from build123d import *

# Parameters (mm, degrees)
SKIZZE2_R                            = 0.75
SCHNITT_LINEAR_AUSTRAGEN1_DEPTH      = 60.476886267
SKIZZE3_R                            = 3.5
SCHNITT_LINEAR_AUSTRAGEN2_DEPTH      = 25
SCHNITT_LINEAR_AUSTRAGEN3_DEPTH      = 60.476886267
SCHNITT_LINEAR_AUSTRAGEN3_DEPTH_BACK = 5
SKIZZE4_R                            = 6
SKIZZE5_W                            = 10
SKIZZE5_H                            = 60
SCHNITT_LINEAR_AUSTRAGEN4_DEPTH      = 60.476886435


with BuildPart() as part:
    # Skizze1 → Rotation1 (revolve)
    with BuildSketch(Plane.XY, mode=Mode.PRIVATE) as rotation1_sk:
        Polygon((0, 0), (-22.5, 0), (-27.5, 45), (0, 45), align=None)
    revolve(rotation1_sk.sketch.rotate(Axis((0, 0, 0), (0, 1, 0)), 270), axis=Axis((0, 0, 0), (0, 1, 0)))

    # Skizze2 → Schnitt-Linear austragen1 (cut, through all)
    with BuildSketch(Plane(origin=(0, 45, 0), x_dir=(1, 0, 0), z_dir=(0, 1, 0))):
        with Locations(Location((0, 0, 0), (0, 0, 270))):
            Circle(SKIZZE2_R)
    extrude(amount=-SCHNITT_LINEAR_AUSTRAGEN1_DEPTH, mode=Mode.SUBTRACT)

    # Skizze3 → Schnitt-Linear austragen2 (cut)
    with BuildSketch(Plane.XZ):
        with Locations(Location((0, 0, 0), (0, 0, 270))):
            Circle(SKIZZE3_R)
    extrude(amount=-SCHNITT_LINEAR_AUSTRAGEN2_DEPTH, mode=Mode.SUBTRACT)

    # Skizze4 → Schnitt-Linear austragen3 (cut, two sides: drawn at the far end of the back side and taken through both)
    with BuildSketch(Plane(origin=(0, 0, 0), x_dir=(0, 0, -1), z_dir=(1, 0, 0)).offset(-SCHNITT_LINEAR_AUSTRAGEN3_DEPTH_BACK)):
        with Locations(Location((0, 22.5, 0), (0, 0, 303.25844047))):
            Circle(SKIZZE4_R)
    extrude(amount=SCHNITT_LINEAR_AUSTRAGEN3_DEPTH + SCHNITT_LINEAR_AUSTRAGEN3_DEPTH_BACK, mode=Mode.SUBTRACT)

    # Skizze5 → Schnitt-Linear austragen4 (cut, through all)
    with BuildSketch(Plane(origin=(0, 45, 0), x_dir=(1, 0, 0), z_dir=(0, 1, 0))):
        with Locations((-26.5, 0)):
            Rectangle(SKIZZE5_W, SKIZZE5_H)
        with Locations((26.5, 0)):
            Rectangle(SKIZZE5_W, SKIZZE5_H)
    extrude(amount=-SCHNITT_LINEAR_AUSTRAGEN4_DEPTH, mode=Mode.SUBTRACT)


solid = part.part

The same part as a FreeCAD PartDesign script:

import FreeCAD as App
import Part
import Sketcher

V = App.Vector


def add_polygon(sketch, points):
    """Adds a closed chain of lines whose ends are joined by coincident constraints."""
    first, n = sketch.GeometryCount, len(points)
    for a, b in zip(points, points[1:] + points[:1]):
        sketch.addGeometry(Part.LineSegment(App.Vector(*a, 0), App.Vector(*b, 0)), False)
    for i in range(n):
        sketch.addConstraint(Sketcher.Constraint("Coincident", first + i, 2, first + (i + 1) % n, 1))

doc = App.newDocument("Part")
body = doc.addObject("PartDesign::Body", "Body")

# Sketch on XY plane
sketch1 = body.newObject("Sketcher::SketchObject", "Sketch")
sketch1.AttachmentSupport = (doc.getObject("XY_Plane"), [""])
sketch1.MapMode = "FlatFace"
add_polygon(sketch1, [(-22, 0), (0, 0), (0, 45), (-28, 45)])  # lines 0-3
sketch1.addConstraint(Sketcher.Constraint("Horizontal", 0))
sketch1.addConstraint(Sketcher.Constraint("Vertical", 1))
sketch1.addConstraint(Sketcher.Constraint("Horizontal", 2))
sketch1.addConstraint(Sketcher.Constraint("Coincident", 0, 2, -1, 1))
sketch1.addConstraint(Sketcher.Constraint("DistanceY", 1, 1, 1, 2, 45.0))
sketch1.addConstraint(Sketcher.Constraint("DistanceX", 0, 1, 0, 2, 22.5))
sketch1.addConstraint(Sketcher.Constraint("DistanceX", 2, 2, 2, 1, 27.5))
revolution = body.newObject("PartDesign::Revolution", "Revolution")
revolution.Profile = sketch1
revolution.ReferenceAxis = (sketch1, ["V_Axis"])
revolution.Angle = 360

# Sketch on XZ plane
sketch2 = body.newObject("Sketcher::SketchObject", "Sketch001")
sketch2.AttachmentSupport = (doc.getObject("XZ_Plane"), [""])
sketch2.MapMode = "FlatFace"
sketch2.AttachmentOffset = App.Placement(V(0, 0, -45), App.Rotation())
sketch2.addGeometry(Part.Circle(V(0, 0, 0), V(0, 0, 1), 0.8), False)
sketch2.addConstraint(Sketcher.Constraint("Coincident", 0, 3, -1, 1))
sketch2.addConstraint(Sketcher.Constraint("Diameter", 0, 1.5))
pocket1 = body.newObject("PartDesign::Pocket", "Pocket")
pocket1.Profile = sketch2
pocket1.Type = "ThroughAll"
pocket1.Reversed = True

# Sketch on XZ plane
sketch3 = body.newObject("Sketcher::SketchObject", "Sketch002")
sketch3.AttachmentSupport = (doc.getObject("XZ_Plane"), [""])
sketch3.MapMode = "FlatFace"
sketch3.addGeometry(Part.Circle(V(0, 0, 0), V(0, 0, 1), 3.5), False)
sketch3.addConstraint(Sketcher.Constraint("Coincident", 0, 3, -1, 1))
sketch3.addConstraint(Sketcher.Constraint("Diameter", 0, 7.0))
pocket2 = body.newObject("PartDesign::Pocket", "Pocket001")
pocket2.Profile = sketch3
pocket2.Length = 25

# Sketch on YZ plane
sketch4 = body.newObject("Sketcher::SketchObject", "Sketch003")
sketch4.AttachmentSupport = (doc.getObject("YZ_Plane"), [""])
sketch4.MapMode = "FlatFace"
sketch4.addGeometry(Part.Circle(V(22, 0, 0), V(0, 0, 1), 6), False)
sketch4.addConstraint(Sketcher.Constraint("PointOnObject", 0, 3, -1))
sketch4.addConstraint(Sketcher.Constraint("Diameter", 0, 12.0))
sketch4.addConstraint(Sketcher.Constraint("DistanceX", -1, 1, 0, 3, 22.5))
pocket3 = body.newObject("PartDesign::Pocket", "Pocket002")
pocket3.Profile = sketch4
pocket3.Type = "TwoLengths"
pocket3.Length = 60.476886
pocket3.Length2 = 5
pocket3.Reversed = True

# Sketch on XZ plane
sketch5 = body.newObject("Sketcher::SketchObject", "Sketch004")
sketch5.AttachmentSupport = (doc.getObject("XZ_Plane"), [""])
sketch5.MapMode = "FlatFace"
sketch5.AttachmentOffset = App.Placement(V(0, 0, -45), App.Rotation())
add_polygon(sketch5, [(-32, -30), (-32, 30), (-22, 30), (-22, -30)])  # lines 0-3
add_polygon(sketch5, [(22, -30), (22, 30), (32, 30), (32, -30)])  # lines 4-7
sketch5.addConstraint(Sketcher.Constraint("Vertical", 0))
sketch5.addConstraint(Sketcher.Constraint("Horizontal", 1))
sketch5.addConstraint(Sketcher.Constraint("Vertical", 2))
sketch5.addConstraint(Sketcher.Constraint("Horizontal", 3))
sketch5.addConstraint(Sketcher.Constraint("Vertical", 4))
sketch5.addConstraint(Sketcher.Constraint("Horizontal", 5))
sketch5.addConstraint(Sketcher.Constraint("Vertical", 6))
sketch5.addConstraint(Sketcher.Constraint("Horizontal", 7))
sketch5.addConstraint(Sketcher.Constraint("Symmetric", 2, 2, 4, 2, -1, 1))
sketch5.addConstraint(Sketcher.Constraint("Symmetric", 0, 2, 6, 2, -1, 1))
sketch5.addConstraint(Sketcher.Constraint("Horizontal", 1, 2, 4, 2))
sketch5.addConstraint(Sketcher.Constraint("DistanceX", 1, 1, 1, 2, 10.0))
sketch5.addConstraint(Sketcher.Constraint("DistanceY", 0, 1, 0, 2, 60.0))
sketch5.addConstraint(Sketcher.Constraint("DistanceX", 1, 2, 4, 2, 43.0))
pocket4 = body.newObject("PartDesign::Pocket", "Pocket003")
pocket4.Profile = sketch5
pocket4.Type = "ThroughAll"
pocket4.Reversed = True

doc.recompute()
